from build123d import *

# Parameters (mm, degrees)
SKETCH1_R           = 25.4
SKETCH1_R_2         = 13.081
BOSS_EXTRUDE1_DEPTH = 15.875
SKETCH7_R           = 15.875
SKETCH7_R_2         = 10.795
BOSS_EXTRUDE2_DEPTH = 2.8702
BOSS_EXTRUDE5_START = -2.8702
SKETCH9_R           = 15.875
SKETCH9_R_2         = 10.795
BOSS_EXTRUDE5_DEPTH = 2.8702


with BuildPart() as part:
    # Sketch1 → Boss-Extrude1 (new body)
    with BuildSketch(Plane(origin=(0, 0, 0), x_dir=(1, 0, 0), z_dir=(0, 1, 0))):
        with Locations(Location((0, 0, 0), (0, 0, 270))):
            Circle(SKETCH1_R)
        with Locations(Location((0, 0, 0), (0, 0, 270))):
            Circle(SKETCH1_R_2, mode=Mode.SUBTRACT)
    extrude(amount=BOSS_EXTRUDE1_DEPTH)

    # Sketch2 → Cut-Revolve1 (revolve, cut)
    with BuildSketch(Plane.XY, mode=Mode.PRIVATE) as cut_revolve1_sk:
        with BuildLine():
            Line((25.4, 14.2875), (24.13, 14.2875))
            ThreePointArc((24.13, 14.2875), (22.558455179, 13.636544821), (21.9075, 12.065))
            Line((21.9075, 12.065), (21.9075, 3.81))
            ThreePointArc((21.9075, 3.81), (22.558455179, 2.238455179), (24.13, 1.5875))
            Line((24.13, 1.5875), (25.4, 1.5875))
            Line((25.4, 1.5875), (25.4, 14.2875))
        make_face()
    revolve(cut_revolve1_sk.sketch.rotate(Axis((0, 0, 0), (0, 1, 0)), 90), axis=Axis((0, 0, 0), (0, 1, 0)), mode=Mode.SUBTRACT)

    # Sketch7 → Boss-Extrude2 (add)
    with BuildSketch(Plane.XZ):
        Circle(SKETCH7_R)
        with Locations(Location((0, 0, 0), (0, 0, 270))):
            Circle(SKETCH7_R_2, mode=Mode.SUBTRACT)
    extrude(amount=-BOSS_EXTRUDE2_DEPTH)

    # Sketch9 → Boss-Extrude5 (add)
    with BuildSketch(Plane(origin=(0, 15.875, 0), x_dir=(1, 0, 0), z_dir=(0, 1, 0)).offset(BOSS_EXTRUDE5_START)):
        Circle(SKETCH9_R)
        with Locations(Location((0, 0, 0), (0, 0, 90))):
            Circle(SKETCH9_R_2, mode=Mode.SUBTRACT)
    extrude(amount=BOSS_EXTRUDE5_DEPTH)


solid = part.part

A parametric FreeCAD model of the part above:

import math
import FreeCAD as App
import Part
import Sketcher
from FreeCAD import Vector
Q = App.Units.Quantity

doc = App.newDocument("Part")
body = doc.addObject("PartDesign::Body", "Body")

sketch1 = body.newObject("Sketcher::SketchObject", "Sketch")
sketch1.AttachmentSupport = (doc.getObject("XZ_Plane"), [""])
sketch1.MapMode = "FlatFace"
sketch1.addGeometry([
    Part.Circle(Vector(0, 0, 0), Vector(0, 0, 1), 25),
    Part.Circle(Vector(0, 0, 0), Vector(0, 0, 1), 13),
], False)
sketch1.addConstraint([
    Sketcher.Constraint("Coincident", 0, 3, -1, 1),
    Sketcher.Constraint("Coincident", 1, 3, -1, 1),
    Sketcher.Constraint("Diameter", 0, Q("2 in")),
    Sketcher.Constraint("Diameter", 1, Q("1.03 in")),
])
pad1 = body.newObject("PartDesign::Pad", "Pad")
pad1.Profile = sketch1
pad1.Length = Q("0.625 in")
pad1.Reversed = True

sketch2 = body.newObject("Sketcher::SketchObject", "Sketch001")
sketch2.AttachmentSupport = (doc.getObject("XY_Plane"), [""])
sketch2.MapMode = "FlatFace"
sketch2.addGeometry([
    Part.LineSegment(Vector(25.4, 14.3, 0), Vector(24.1, 14.3, 0)),
    Part.ArcOfCircle(Part.Circle(Vector(24.1, 12.1, 0), Vector(0, 0, 1), 2.2), math.radians(90), math.radians(180)),
    Part.LineSegment(Vector(21.9, 12.1, 0), Vector(21.9, 3.8, 0)),
    Part.ArcOfCircle(Part.Circle(Vector(24.1, 3.8, 0), Vector(0, 0, 1), 2.2), math.radians(-180), math.radians(-90)),
    Part.LineSegment(Vector(24.1, 1.6, 0), Vector(25.4, 1.6, 0)),
    Part.LineSegment(Vector(25.4, 1.6, 0), Vector(25.4, 14.3, 0)),
], False)
sketch2.addConstraint([
    Sketcher.Constraint("Tangent", 0, 2, 1, 1),
    Sketcher.Constraint("Tangent", 1, 2, 2, 1),
    Sketcher.Constraint("Tangent", 2, 2, 3, 1),
    Sketcher.Constraint("Tangent", 3, 2, 4, 1),
    Sketcher.Constraint("Coincident", 4, 2, 5, 1),
    Sketcher.Constraint("Coincident", 5, 2, 0, 1),
    Sketcher.Constraint("Horizontal", 0),
    Sketcher.Constraint("Vertical", 2),
    Sketcher.Constraint("Horizontal", 4),
    Sketcher.Constraint("Vertical", 5),
    Sketcher.Constraint("Equal", 1, 3),
    Sketcher.Constraint("DistanceY", 5, 1, 5, 2, Q("0.5 in")),
    Sketcher.Constraint("DistanceX", -1, 1, 4, 2, Q("1 in")),
    Sketcher.Constraint("DistanceX", 0, 2, 0, 1, Q("0.05 in")),
    Sketcher.Constraint("Radius", 1, Q("0.0875 in")),
    Sketcher.Constraint("DistanceY", -1, 1, 3, 3, Q("0.15 in")),
])
groove = body.newObject("PartDesign::Groove", "Groove")
groove.Profile = sketch2
groove.ReferenceAxis = (sketch2, ["V_Axis"])
groove.Angle = 360

sketch3 = body.newObject("Sketcher::SketchObject", "Sketch002")
sketch3.AttachmentSupport = (doc.getObject("XZ_Plane"), [""])
sketch3.MapMode = "FlatFace"
sketch3.addGeometry([
    Part.Circle(Vector(0, 0, 0), Vector(0, 0, 1), 16),
    Part.Circle(Vector(0, 0, 0), Vector(0, 0, 1), 11),
], False)
sketch3.addConstraint([
    Sketcher.Constraint("Coincident", 0, 3, -1, 1),
    Sketcher.Constraint("Coincident", 1, 3, -1, 1),
    Sketcher.Constraint("Diameter", 0, Q("1.25 in")),
    Sketcher.Constraint("Diameter", 1, Q("0.85 in")),
])
pad2 = body.newObject("PartDesign::Pad", "Pad001")
pad2.Profile = sketch3
pad2.Length = Q("0.113 in")
pad2.Reversed = True

sketch4 = body.newObject("Sketcher::SketchObject", "Sketch003")
sketch4.AttachmentSupport = (doc.getObject("XZ_Plane"), [""])
sketch4.MapMode = "FlatFace"
sketch4.AttachmentOffset = App.Placement(Vector(0, 0, -0.512 * 25.4), App.Rotation())
sketch4.addGeometry([
    Part.Circle(Vector(0, 0, 0), Vector(0, 0, 1), 16),
    Part.Circle(Vector(0, 0, 0), Vector(0, 0, 1), 11),
], False)
sketch4.addConstraint([
    Sketcher.Constraint("Coincident", 0, 3, -1, 1),
    Sketcher.Constraint("Coincident", 1, 3, -1, 1),
    Sketcher.Constraint("Diameter", 0, Q("1.25 in")),
    Sketcher.Constraint("Diameter", 1, Q("0.85 in")),
])
pad3 = body.newObject("PartDesign::Pad", "Pad002")
pad3.Profile = sketch4
pad3.Length = Q("0.113 in")
pad3.Reversed = True

doc.recompute()
